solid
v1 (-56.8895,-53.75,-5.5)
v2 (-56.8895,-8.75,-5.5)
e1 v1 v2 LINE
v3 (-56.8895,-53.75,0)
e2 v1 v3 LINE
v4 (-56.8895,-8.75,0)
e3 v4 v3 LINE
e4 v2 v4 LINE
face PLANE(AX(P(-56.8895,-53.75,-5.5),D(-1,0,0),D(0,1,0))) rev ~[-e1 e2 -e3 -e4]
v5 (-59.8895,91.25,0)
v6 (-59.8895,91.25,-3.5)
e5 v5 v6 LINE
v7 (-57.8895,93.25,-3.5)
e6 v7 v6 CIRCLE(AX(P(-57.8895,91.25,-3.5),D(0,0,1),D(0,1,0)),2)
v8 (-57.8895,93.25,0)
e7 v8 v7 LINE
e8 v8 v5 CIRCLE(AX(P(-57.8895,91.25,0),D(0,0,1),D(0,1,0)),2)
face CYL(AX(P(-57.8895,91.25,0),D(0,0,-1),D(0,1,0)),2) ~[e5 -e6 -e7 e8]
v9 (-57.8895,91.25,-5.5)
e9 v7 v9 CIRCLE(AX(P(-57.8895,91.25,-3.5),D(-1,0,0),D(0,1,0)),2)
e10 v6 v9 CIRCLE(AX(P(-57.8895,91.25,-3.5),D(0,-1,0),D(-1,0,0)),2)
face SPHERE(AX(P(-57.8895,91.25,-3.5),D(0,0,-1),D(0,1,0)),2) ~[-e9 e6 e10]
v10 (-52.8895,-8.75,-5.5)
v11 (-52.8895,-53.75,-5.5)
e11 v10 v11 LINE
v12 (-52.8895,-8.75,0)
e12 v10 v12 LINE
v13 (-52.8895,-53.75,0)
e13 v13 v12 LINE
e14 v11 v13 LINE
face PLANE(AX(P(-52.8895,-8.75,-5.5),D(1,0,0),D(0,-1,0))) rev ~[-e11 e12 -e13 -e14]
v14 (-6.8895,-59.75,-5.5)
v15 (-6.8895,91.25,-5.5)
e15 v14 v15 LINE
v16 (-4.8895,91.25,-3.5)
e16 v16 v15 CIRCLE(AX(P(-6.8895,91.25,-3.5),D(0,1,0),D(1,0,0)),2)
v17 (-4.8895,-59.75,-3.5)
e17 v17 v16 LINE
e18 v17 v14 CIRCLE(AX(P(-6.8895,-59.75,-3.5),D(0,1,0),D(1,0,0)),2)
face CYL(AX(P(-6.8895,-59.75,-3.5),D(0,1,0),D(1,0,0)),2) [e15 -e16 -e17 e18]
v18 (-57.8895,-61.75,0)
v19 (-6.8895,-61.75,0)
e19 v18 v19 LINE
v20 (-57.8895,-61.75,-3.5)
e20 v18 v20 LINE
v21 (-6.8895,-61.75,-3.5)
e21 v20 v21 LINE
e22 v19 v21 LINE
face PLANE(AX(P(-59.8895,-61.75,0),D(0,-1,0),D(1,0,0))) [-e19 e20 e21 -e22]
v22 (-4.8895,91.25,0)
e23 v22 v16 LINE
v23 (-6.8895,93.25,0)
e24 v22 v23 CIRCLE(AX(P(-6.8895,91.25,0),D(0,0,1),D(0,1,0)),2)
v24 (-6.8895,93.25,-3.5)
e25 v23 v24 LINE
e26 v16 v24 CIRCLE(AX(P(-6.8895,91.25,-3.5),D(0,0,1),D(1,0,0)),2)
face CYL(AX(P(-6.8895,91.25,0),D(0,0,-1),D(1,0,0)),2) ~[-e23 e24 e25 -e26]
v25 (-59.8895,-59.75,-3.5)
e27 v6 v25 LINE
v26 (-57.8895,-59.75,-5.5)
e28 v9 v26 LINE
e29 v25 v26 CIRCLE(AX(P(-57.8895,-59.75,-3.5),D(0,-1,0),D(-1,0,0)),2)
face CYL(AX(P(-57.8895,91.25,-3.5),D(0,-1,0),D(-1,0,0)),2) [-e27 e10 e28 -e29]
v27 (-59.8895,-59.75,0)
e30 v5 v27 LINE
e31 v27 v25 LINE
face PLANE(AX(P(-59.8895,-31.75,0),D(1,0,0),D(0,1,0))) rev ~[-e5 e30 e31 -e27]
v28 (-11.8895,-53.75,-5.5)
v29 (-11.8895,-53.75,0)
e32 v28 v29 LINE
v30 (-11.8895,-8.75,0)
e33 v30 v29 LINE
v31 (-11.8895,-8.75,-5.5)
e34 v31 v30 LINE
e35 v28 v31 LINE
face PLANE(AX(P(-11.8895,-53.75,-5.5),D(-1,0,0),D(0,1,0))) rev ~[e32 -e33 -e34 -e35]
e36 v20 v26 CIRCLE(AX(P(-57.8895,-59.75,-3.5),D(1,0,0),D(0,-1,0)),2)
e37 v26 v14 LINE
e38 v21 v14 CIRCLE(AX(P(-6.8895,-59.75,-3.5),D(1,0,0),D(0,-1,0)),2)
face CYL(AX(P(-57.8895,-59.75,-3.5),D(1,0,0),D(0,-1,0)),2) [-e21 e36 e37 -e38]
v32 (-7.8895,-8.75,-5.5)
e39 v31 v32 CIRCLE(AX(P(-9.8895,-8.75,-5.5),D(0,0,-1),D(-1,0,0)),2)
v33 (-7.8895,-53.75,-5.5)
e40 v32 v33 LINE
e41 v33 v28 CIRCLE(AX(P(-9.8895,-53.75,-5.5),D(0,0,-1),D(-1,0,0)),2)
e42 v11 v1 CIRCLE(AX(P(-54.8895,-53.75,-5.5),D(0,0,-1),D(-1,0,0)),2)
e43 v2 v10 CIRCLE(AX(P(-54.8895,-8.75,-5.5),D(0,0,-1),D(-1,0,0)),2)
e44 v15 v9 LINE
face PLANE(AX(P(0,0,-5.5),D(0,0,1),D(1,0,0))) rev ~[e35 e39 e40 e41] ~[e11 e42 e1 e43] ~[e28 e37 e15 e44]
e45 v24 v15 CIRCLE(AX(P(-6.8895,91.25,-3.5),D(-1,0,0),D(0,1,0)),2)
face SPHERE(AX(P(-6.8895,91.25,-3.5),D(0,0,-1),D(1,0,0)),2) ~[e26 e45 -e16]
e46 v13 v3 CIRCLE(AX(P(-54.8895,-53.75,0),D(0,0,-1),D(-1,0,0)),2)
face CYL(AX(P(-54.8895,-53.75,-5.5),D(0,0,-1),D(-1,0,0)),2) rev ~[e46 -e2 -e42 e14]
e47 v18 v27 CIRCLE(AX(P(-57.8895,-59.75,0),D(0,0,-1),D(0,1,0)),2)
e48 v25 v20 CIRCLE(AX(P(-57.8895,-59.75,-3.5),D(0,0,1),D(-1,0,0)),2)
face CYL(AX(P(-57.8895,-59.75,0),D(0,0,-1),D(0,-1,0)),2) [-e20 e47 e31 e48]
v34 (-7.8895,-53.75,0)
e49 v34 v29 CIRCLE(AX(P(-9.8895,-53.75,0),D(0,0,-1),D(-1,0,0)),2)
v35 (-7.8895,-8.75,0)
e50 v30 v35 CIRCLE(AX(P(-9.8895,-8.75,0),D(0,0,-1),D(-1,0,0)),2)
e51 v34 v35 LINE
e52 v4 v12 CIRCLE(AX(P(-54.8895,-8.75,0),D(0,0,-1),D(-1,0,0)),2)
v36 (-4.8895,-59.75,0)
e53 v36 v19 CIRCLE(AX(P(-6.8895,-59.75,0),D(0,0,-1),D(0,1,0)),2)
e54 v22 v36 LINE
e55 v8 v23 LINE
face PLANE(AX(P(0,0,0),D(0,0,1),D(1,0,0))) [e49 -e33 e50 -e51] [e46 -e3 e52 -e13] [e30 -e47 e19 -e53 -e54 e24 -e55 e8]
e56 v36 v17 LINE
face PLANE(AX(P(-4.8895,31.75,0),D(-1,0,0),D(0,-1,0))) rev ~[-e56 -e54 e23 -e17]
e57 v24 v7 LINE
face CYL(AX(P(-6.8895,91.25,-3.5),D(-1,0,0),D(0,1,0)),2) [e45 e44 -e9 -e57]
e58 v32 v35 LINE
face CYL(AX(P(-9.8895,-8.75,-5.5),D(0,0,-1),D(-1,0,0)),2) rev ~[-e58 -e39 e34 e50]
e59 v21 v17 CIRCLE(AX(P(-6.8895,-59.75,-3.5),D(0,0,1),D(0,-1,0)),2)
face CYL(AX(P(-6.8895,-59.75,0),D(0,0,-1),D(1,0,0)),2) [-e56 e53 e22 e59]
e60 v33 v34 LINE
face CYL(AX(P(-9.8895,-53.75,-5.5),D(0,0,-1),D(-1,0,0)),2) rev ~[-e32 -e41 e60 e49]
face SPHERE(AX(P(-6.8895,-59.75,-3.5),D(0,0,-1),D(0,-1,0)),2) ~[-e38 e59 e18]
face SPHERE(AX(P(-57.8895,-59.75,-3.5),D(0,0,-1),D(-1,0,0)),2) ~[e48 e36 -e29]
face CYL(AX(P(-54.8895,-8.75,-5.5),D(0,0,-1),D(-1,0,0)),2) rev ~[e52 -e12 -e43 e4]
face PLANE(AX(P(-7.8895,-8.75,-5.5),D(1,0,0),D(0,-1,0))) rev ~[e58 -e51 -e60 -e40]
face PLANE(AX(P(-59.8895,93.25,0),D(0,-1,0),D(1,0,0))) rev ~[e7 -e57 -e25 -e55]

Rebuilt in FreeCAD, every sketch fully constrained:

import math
import FreeCAD as App
import Part
import Sketcher
from FreeCAD import Vector


def edges_at(feature, points):
    """Names of the edges that pass closest to the given points."""
    edges = feature.Shape.Edges
    near = lambda p: min(range(len(edges)), key=lambda i: edges[i].distToShape(Part.Vertex(*p))[0])
    return sorted({f"Edge{near(p) + 1}" for p in points})


def add_polygon(sketch, points):
    """Adds a closed chain of lines whose ends are joined by coincident constraints."""
    first, n = sketch.GeometryCount, len(points)
    for a, b in zip(points, points[1:] + points[:1]):
        sketch.addGeometry(Part.LineSegment(App.Vector(*a, 0), App.Vector(*b, 0)), False)
    for i in range(n):
        sketch.addConstraint(Sketcher.Constraint("Coincident", first + i, 2, first + (i + 1) % n, 1))

doc = App.newDocument("Part")
body = doc.addObject("PartDesign::Body", "Body")

sketch1 = body.newObject("Sketcher::SketchObject", "Sketch")
sketch1.AttachmentSupport = (doc.getObject("XY_Plane"), [""])
sketch1.MapMode = "FlatFace"
add_polygon(sketch1, [(-5, -32), (-5, 93), (-60, 93), (-60, -32)])
sketch1.addConstraint(Sketcher.Constraint("Vertical", 0))
sketch1.addConstraint(Sketcher.Constraint("Horizontal", 1))
sketch1.addConstraint(Sketcher.Constraint("Vertical", 2))
sketch1.addConstraint(Sketcher.Constraint("Horizontal", 3))
sketch1.addConstraint(Sketcher.Constraint("DistanceX", 1, 2, 1, 1, 55.0))
sketch1.addConstraint(Sketcher.Constraint("DistanceY", 0, 1, 0, 2, 125.0))
sketch1.addConstraint(Sketcher.Constraint("DistanceY", -1, 1, 0, 2, 93.25))
sketch1.addConstraint(Sketcher.Constraint("DistanceX", 0, 2, -1, 1, 4.8895))
pad1 = body.newObject("PartDesign::Pad", "Pad")
pad1.Profile = sketch1
pad1.Length = 5.5
pad1.Reversed = True

sketch2 = body.newObject("Sketcher::SketchObject", "Sketch001")
sketch2.AttachmentSupport = (doc.getObject("XZ_Plane"), [""])
sketch2.MapMode = "FlatFace"
sketch2.AttachmentOffset = App.Placement(Vector(0, 0, 31.75), App.Rotation())
add_polygon(sketch2, [(-5, 0), (-60, 0), (-60, -6), (-5, -6)])
sketch2.addConstraint(Sketcher.Constraint("Horizontal", 0))
sketch2.addConstraint(Sketcher.Constraint("Vertical", 1))
sketch2.addConstraint(Sketcher.Constraint("Horizontal", 2))
sketch2.addConstraint(Sketcher.Constraint("Vertical", 3))
sketch2.addConstraint(Sketcher.Constraint("PointOnObject", 0, 2, -1))
sketch2.addConstraint(Sketcher.Constraint("DistanceX", 0, 2, 0, 1, 55.0))
sketch2.addConstraint(Sketcher.Constraint("DistanceY", 1, 2, 1, 1, 5.5))
sketch2.addConstraint(Sketcher.Constraint("DistanceX", 0, 2, -1, 1, 59.8895))
pad2 = body.newObject("PartDesign::Pad", "Pad001")
pad2.Profile = sketch2
pad2.Length = 30

sketch3 = body.newObject("Sketcher::SketchObject", "Sketch002")
sketch3.AttachmentSupport = (doc.getObject("XY_Plane"), [""])
sketch3.MapMode = "FlatFace"
sketch3.AttachmentOffset = App.Placement(Vector(0, 0, -5.5), App.Rotation())
sketch3.addGeometry(Part.ArcOfCircle(Part.Circle(Vector(-54.9, -8.8, 0), Vector(0, 0, 1), 2), math.radians(0), math.radians(180)), False)
sketch3.addGeometry(Part.LineSegment(Vector(-52.9, -8.8, 0), Vector(-52.9, -53.8, 0)), False)
sketch3.addGeometry(Part.ArcOfCircle(Part.Circle(Vector(-54.9, -53.8, 0), Vector(0, 0, 1), 2), math.radians(180), math.radians(360)), False)
sketch3.addGeometry(Part.LineSegment(Vector(-56.9, -53.8, 0), Vector(-56.9, -8.8, 0)), False)
sketch3.addGeometry(Part.ArcOfCircle(Part.Circle(Vector(-9.9, -8.8, 0), Vector(0, 0, 1), 2), math.radians(0), math.radians(180)), False)
sketch3.addGeometry(Part.LineSegment(Vector(-7.9, -8.8, 0), Vector(-7.9, -53.8, 0)), False)
sketch3.addGeometry(Part.ArcOfCircle(Part.Circle(Vector(-9.9, -53.8, 0), Vector(0, 0, 1), 2), math.radians(180), math.radians(360)), False)
sketch3.addGeometry(Part.LineSegment(Vector(-11.9, -53.8, 0), Vector(-11.9, -8.8, 0)), False)
sketch3.addConstraint(Sketcher.Constraint("Tangent", 0, 1, 1, 1))
sketch3.addConstraint(Sketcher.Constraint("Tangent", 1, 2, 2, 2))
sketch3.addConstraint(Sketcher.Constraint("Tangent", 2, 1, 3, 1))
sketch3.addConstraint(Sketcher.Constraint("Tangent", 3, 2, 0, 2))
sketch3.addConstraint(Sketcher.Constraint("Tangent", 4, 1, 5, 1))
sketch3.addConstraint(Sketcher.Constraint("Tangent", 5, 2, 6, 2))
sketch3.addConstraint(Sketcher.Constraint("Tangent", 6, 1, 7, 1))
sketch3.addConstraint(Sketcher.Constraint("Tangent", 7, 2, 4, 2))
sketch3.addConstraint(Sketcher.Constraint("Vertical", 1))
sketch3.addConstraint(Sketcher.Constraint("Vertical", 3))
sketch3.addConstraint(Sketcher.Constraint("Vertical", 5))
sketch3.addConstraint(Sketcher.Constraint("Vertical", 7))
sketch3.addConstraint(Sketcher.Constraint("Equal", 2, 4))
sketch3.addConstraint(Sketcher.Constraint("Horizontal", 0, 3, 4, 3))
sketch3.addConstraint(Sketcher.Constraint("Horizontal", 2, 3, 6, 3))
sketch3.addConstraint(Sketcher.Constraint("Radius", 0, 2.0))
sketch3.addConstraint(Sketcher.Constraint("DistanceY", 1, 2, 1, 1, 45.0))
sketch3.addConstraint(Sketcher.Constraint("DistanceX", 0, 3, 4, 3, 45.0))
sketch3.addConstraint(Sketcher.Constraint("DistanceY", 0, 3, -1, 1, 8.75))
sketch3.addConstraint(Sketcher.Constraint("DistanceX", 0, 3, -1, 1, 54.8895))
pocket1 = body.newObject("PartDesign::Pocket", "Pocket")
pocket1.Profile = sketch3
pocket1.Length = 30
pocket1.Reversed = True
doc.recompute()

fillet = body.newObject("PartDesign::Fillet", "Fillet")
fillet.Base = (pocket1, edges_at(pocket1, [
    (-59.889, 93.25, -2.75),
    (-4.889, 93.25, -2.75),
    (-4.889, -61.75, -2.75),
    (-59.889, -61.75, -2.75),
]))
fillet.Radius = 2
doc.recompute()

fillet2 = body.newObject("PartDesign::Fillet", "Fillet001")
fillet2.Base = (fillet, edges_at(fillet, [
    (-4.889, 15.75, -5.5),
    (-5.475, 92.664, -5.5),
    (-32.389, 93.25, -5.5),
    (-59.304, 92.664, -5.5),
    (-59.889, 15.75, -5.5),
    (-32.389, -61.75, -5.5),
]))
fillet2.Radius = 2

doc.recompute()
